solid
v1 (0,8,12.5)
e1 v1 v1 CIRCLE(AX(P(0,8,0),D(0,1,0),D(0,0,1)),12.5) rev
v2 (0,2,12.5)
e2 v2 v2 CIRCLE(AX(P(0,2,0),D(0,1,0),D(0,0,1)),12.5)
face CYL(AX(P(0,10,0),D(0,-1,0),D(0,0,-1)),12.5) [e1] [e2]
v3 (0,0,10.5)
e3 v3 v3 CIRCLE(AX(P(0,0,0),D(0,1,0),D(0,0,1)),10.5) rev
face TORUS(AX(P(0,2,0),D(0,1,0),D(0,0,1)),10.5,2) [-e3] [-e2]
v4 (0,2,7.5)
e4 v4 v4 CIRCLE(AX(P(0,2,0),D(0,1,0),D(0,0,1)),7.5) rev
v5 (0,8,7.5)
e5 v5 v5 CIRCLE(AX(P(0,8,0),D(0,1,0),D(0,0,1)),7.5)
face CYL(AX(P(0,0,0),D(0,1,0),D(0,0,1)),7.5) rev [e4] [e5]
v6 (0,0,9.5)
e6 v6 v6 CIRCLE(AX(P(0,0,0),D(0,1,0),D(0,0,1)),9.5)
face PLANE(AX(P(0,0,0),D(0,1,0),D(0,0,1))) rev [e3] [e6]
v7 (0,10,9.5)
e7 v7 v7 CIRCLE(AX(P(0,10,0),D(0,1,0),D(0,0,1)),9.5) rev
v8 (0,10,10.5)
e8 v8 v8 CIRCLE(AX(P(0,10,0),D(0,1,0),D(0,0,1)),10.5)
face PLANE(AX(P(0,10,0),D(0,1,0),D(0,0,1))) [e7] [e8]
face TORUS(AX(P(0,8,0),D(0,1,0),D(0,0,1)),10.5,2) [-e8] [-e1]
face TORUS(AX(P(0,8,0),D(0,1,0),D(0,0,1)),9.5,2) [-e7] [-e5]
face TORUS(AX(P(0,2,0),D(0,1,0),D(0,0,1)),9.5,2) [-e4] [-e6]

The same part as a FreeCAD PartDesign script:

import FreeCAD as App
import Part
import Sketcher
Q = App.Units.Quantity


def edges_at(feature, points):
    """Names of the edges that pass closest to the given points."""
    edges = feature.Shape.Edges
    near = lambda p: min(range(len(edges)), key=lambda i: edges[i].distToShape(Part.Vertex(*p))[0])
    return sorted({f"Edge{near(p) + 1}" for p in points})

doc = App.newDocument("Part")
body = doc.addObject("PartDesign::Body", "Body")

# Sketch on XZ plane
sketch1 = doc.addObject("Sketcher::SketchObject", "Sketch")
body.addObject(sketch1)
sketch1.AttachmentSupport = (doc.XZ_Plane, [""])
sketch1.MapMode = "FlatFace"
sketch1.addGeometry(Part.Circle(App.Vector(0, 0, 0), App.Vector(0, 0, 1), 12), False)
sketch1.addConstraint(Sketcher.Constraint("Coincident", 0, 3, -1, 1))
sketch1.addConstraint(Sketcher.Constraint("Diameter", 0, Q("25 mm")))
pad1 = doc.addObject("PartDesign::Pad", "Pad")
body.addObject(pad1)
pad1.Profile = sketch1
pad1.Length = 10
pad1.Reversed = True

# Sketch on XZ plane
sketch2 = doc.addObject("Sketcher::SketchObject", "Sketch001")
body.addObject(sketch2)
sketch2.AttachmentSupport = (doc.XZ_Plane, [""])
sketch2.MapMode = "FlatFace"
sketch2.AttachmentOffset = App.Placement(App.Vector(0, 0, -10), App.Rotation())
sketch2.addGeometry(Part.Circle(App.Vector(0, 0, 0), App.Vector(0, 0, 1), 8), False)
sketch2.addConstraint(Sketcher.Constraint("Coincident", 0, 3, -1, 1))
sketch2.addConstraint(Sketcher.Constraint("Diameter", 0, Q("15 mm")))
pocket1 = doc.addObject("PartDesign::Pocket", "Pocket")
body.addObject(pocket1)
pocket1.Profile = sketch2
pocket1.Type = "ThroughAll"
pocket1.Reversed = True
doc.recompute()

fillet = doc.addObject("PartDesign::Fillet", "Fillet")
body.addObject(fillet)
fillet.Base = (pocket1, edges_at(pocket1, [
    (0, 0, -12.5),
    (0, 10, -12.5),
    (0, 0, -7.5),
    (0, 10, -7.5),
]))
fillet.Radius = 2

doc.recompute()
